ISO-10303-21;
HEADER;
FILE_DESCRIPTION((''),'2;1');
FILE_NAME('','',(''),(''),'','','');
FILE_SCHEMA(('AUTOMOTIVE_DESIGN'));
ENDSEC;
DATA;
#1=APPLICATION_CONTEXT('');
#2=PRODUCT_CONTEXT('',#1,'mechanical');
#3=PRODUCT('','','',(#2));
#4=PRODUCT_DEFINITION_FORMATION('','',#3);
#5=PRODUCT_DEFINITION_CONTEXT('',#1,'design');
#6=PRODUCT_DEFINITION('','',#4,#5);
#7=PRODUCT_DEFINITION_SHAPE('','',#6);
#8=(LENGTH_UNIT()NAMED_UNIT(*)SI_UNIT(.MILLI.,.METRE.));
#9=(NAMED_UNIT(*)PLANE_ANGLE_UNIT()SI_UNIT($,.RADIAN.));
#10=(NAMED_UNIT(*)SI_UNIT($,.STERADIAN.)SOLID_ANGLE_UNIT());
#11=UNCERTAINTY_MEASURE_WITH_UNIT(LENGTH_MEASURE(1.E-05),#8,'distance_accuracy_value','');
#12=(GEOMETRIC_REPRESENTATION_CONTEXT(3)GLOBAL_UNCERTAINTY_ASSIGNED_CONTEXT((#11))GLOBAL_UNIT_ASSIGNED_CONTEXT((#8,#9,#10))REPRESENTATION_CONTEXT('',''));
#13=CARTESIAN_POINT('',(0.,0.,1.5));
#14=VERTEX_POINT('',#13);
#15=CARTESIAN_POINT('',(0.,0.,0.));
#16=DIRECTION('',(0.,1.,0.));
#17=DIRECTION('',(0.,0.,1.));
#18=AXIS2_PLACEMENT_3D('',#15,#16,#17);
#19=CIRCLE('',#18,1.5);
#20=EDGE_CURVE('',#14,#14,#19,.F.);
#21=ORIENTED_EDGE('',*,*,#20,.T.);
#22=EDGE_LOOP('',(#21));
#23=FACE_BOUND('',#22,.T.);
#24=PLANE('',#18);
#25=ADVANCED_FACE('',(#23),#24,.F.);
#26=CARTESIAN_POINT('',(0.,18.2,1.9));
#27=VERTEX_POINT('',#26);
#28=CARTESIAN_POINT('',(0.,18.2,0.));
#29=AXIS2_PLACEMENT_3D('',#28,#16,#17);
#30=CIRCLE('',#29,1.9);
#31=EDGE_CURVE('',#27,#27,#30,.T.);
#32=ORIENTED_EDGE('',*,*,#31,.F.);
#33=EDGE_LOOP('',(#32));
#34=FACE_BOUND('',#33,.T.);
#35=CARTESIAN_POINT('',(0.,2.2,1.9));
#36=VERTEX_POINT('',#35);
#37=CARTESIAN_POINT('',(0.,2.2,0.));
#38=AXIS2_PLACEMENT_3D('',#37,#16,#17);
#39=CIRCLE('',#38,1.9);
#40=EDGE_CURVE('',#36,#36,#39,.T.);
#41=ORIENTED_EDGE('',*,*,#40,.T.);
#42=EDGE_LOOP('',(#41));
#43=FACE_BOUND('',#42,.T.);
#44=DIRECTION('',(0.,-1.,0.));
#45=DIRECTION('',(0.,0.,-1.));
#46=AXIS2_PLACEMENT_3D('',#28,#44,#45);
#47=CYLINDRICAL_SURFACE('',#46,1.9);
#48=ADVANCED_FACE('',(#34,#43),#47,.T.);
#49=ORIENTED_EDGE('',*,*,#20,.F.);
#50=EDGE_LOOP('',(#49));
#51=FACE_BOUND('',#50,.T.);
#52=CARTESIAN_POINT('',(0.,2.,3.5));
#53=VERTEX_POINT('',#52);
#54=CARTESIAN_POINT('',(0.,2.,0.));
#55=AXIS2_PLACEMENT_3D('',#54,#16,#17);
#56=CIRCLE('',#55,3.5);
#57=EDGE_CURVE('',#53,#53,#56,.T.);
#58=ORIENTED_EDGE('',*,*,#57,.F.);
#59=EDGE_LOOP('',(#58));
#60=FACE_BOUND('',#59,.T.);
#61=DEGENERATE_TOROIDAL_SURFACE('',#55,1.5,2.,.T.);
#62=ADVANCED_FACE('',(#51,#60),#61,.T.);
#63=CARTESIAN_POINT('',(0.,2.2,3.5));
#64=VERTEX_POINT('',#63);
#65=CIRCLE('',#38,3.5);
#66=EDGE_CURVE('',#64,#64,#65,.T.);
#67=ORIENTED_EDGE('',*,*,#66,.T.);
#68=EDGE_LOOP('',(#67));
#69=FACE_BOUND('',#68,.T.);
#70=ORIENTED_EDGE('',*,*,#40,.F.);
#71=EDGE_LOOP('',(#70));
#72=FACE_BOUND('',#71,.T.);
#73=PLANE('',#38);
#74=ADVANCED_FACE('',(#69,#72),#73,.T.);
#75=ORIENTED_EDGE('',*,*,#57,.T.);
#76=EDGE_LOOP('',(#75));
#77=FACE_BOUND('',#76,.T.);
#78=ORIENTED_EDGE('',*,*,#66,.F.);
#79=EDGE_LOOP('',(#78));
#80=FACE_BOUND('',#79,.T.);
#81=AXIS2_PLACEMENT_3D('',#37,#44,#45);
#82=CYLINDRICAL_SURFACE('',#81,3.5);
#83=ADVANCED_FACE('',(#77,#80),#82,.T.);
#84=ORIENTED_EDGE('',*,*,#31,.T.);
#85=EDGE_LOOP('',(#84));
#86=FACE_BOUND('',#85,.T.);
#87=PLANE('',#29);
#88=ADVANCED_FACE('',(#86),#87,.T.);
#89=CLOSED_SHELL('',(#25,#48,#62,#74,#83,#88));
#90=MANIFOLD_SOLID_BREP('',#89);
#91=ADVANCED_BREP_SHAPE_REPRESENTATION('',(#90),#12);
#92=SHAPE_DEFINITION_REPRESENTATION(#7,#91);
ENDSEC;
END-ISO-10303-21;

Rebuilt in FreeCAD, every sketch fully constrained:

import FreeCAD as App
import Part
import Sketcher
from FreeCAD import Vector


def edges_at(feature, points):
    """Names of the edges that pass closest to the given points."""
    edges = feature.Shape.Edges
    near = lambda p: min(range(len(edges)), key=lambda i: edges[i].distToShape(Part.Vertex(*p))[0])
    return sorted({f"Edge{near(p) + 1}" for p in points})

doc = App.newDocument("Part")
body = doc.addObject("PartDesign::Body", "Body")

sketch1 = body.newObject("Sketcher::SketchObject", "Sketch")
sketch1.AttachmentSupport = (doc.getObject("XZ_Plane"), [""])
sketch1.MapMode = "FlatFace"
sketch1.addGeometry(Part.Circle(Vector(0, 0, 0), Vector(0, 0, 1), 3.5), False)
sketch1.addConstraint(Sketcher.Constraint("Coincident", 0, 3, -1, 1))
sketch1.addConstraint(Sketcher.Constraint("Diameter", 0, 7.0))
pad1 = body.newObject("PartDesign::Pad", "Pad")
pad1.Profile = sketch1
pad1.Length = 2.2
pad1.Reversed = True

sketch2 = body.newObject("Sketcher::SketchObject", "Sketch001")
sketch2.AttachmentSupport = (doc.getObject("XZ_Plane"), [""])
sketch2.MapMode = "FlatFace"
sketch2.AttachmentOffset = App.Placement(Vector(0, 0, -2.2), App.Rotation())
sketch2.addGeometry(Part.Circle(Vector(0, 0, 0), Vector(0, 0, 1), 1.9), False)
sketch2.addConstraint(Sketcher.Constraint("Coincident", 0, 3, -1, 1))
sketch2.addConstraint(Sketcher.Constraint("Diameter", 0, 3.8))
pad2 = body.newObject("PartDesign::Pad", "Pad001")
pad2.Profile = sketch2
pad2.Length = 16
pad2.Reversed = True
doc.recompute()

fillet = body.newObject("PartDesign::Fillet", "Fillet")
fillet.Base = (pad2, edges_at(pad2, [(-3.5, 0, 0)]))
fillet.Radius = 2

doc.recompute()
